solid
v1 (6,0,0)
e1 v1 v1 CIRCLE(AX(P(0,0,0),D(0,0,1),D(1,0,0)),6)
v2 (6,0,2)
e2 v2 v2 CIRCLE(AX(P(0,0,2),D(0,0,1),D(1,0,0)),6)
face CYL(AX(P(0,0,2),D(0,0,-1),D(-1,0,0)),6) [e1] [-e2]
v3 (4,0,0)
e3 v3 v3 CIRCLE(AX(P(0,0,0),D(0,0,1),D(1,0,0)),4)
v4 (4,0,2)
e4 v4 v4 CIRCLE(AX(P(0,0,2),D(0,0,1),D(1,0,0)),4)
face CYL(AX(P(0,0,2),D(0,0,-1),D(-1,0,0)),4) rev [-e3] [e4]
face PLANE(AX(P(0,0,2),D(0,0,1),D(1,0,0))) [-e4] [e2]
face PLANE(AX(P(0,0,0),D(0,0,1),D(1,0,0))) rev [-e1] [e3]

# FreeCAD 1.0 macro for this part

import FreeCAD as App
import Part
import Sketcher

V = App.Vector
Q = App.Units.Quantity

doc = App.newDocument("Part")
body = doc.addObject("PartDesign::Body", "Body")

# Sketch on XY plane
sketch1 = body.newObject("Sketcher::SketchObject", "Sketch")
sketch1.AttachmentSupport = (doc.getObject("XY_Plane"), [""])
sketch1.MapMode = "FlatFace"
sketch1.addGeometry(Part.Circle(V(0, 0, 0), V(0, 0, 1), 6), False)
sketch1.addGeometry(Part.Circle(V(0, 0, 0), V(0, 0, 1), 4), False)
sketch1.addConstraint(Sketcher.Constraint("Coincident", 0, 3, -1, 1))
sketch1.addConstraint(Sketcher.Constraint("Coincident", 1, 3, -1, 1))
sketch1.addConstraint(Sketcher.Constraint("Diameter", 0, Q("12 mm")))
sketch1.addConstraint(Sketcher.Constraint("Diameter", 1, Q("8 mm")))
pad1 = body.newObject("PartDesign::Pad", "Pad")
pad1.Profile = sketch1
pad1.Length = 2

doc.recompute()
